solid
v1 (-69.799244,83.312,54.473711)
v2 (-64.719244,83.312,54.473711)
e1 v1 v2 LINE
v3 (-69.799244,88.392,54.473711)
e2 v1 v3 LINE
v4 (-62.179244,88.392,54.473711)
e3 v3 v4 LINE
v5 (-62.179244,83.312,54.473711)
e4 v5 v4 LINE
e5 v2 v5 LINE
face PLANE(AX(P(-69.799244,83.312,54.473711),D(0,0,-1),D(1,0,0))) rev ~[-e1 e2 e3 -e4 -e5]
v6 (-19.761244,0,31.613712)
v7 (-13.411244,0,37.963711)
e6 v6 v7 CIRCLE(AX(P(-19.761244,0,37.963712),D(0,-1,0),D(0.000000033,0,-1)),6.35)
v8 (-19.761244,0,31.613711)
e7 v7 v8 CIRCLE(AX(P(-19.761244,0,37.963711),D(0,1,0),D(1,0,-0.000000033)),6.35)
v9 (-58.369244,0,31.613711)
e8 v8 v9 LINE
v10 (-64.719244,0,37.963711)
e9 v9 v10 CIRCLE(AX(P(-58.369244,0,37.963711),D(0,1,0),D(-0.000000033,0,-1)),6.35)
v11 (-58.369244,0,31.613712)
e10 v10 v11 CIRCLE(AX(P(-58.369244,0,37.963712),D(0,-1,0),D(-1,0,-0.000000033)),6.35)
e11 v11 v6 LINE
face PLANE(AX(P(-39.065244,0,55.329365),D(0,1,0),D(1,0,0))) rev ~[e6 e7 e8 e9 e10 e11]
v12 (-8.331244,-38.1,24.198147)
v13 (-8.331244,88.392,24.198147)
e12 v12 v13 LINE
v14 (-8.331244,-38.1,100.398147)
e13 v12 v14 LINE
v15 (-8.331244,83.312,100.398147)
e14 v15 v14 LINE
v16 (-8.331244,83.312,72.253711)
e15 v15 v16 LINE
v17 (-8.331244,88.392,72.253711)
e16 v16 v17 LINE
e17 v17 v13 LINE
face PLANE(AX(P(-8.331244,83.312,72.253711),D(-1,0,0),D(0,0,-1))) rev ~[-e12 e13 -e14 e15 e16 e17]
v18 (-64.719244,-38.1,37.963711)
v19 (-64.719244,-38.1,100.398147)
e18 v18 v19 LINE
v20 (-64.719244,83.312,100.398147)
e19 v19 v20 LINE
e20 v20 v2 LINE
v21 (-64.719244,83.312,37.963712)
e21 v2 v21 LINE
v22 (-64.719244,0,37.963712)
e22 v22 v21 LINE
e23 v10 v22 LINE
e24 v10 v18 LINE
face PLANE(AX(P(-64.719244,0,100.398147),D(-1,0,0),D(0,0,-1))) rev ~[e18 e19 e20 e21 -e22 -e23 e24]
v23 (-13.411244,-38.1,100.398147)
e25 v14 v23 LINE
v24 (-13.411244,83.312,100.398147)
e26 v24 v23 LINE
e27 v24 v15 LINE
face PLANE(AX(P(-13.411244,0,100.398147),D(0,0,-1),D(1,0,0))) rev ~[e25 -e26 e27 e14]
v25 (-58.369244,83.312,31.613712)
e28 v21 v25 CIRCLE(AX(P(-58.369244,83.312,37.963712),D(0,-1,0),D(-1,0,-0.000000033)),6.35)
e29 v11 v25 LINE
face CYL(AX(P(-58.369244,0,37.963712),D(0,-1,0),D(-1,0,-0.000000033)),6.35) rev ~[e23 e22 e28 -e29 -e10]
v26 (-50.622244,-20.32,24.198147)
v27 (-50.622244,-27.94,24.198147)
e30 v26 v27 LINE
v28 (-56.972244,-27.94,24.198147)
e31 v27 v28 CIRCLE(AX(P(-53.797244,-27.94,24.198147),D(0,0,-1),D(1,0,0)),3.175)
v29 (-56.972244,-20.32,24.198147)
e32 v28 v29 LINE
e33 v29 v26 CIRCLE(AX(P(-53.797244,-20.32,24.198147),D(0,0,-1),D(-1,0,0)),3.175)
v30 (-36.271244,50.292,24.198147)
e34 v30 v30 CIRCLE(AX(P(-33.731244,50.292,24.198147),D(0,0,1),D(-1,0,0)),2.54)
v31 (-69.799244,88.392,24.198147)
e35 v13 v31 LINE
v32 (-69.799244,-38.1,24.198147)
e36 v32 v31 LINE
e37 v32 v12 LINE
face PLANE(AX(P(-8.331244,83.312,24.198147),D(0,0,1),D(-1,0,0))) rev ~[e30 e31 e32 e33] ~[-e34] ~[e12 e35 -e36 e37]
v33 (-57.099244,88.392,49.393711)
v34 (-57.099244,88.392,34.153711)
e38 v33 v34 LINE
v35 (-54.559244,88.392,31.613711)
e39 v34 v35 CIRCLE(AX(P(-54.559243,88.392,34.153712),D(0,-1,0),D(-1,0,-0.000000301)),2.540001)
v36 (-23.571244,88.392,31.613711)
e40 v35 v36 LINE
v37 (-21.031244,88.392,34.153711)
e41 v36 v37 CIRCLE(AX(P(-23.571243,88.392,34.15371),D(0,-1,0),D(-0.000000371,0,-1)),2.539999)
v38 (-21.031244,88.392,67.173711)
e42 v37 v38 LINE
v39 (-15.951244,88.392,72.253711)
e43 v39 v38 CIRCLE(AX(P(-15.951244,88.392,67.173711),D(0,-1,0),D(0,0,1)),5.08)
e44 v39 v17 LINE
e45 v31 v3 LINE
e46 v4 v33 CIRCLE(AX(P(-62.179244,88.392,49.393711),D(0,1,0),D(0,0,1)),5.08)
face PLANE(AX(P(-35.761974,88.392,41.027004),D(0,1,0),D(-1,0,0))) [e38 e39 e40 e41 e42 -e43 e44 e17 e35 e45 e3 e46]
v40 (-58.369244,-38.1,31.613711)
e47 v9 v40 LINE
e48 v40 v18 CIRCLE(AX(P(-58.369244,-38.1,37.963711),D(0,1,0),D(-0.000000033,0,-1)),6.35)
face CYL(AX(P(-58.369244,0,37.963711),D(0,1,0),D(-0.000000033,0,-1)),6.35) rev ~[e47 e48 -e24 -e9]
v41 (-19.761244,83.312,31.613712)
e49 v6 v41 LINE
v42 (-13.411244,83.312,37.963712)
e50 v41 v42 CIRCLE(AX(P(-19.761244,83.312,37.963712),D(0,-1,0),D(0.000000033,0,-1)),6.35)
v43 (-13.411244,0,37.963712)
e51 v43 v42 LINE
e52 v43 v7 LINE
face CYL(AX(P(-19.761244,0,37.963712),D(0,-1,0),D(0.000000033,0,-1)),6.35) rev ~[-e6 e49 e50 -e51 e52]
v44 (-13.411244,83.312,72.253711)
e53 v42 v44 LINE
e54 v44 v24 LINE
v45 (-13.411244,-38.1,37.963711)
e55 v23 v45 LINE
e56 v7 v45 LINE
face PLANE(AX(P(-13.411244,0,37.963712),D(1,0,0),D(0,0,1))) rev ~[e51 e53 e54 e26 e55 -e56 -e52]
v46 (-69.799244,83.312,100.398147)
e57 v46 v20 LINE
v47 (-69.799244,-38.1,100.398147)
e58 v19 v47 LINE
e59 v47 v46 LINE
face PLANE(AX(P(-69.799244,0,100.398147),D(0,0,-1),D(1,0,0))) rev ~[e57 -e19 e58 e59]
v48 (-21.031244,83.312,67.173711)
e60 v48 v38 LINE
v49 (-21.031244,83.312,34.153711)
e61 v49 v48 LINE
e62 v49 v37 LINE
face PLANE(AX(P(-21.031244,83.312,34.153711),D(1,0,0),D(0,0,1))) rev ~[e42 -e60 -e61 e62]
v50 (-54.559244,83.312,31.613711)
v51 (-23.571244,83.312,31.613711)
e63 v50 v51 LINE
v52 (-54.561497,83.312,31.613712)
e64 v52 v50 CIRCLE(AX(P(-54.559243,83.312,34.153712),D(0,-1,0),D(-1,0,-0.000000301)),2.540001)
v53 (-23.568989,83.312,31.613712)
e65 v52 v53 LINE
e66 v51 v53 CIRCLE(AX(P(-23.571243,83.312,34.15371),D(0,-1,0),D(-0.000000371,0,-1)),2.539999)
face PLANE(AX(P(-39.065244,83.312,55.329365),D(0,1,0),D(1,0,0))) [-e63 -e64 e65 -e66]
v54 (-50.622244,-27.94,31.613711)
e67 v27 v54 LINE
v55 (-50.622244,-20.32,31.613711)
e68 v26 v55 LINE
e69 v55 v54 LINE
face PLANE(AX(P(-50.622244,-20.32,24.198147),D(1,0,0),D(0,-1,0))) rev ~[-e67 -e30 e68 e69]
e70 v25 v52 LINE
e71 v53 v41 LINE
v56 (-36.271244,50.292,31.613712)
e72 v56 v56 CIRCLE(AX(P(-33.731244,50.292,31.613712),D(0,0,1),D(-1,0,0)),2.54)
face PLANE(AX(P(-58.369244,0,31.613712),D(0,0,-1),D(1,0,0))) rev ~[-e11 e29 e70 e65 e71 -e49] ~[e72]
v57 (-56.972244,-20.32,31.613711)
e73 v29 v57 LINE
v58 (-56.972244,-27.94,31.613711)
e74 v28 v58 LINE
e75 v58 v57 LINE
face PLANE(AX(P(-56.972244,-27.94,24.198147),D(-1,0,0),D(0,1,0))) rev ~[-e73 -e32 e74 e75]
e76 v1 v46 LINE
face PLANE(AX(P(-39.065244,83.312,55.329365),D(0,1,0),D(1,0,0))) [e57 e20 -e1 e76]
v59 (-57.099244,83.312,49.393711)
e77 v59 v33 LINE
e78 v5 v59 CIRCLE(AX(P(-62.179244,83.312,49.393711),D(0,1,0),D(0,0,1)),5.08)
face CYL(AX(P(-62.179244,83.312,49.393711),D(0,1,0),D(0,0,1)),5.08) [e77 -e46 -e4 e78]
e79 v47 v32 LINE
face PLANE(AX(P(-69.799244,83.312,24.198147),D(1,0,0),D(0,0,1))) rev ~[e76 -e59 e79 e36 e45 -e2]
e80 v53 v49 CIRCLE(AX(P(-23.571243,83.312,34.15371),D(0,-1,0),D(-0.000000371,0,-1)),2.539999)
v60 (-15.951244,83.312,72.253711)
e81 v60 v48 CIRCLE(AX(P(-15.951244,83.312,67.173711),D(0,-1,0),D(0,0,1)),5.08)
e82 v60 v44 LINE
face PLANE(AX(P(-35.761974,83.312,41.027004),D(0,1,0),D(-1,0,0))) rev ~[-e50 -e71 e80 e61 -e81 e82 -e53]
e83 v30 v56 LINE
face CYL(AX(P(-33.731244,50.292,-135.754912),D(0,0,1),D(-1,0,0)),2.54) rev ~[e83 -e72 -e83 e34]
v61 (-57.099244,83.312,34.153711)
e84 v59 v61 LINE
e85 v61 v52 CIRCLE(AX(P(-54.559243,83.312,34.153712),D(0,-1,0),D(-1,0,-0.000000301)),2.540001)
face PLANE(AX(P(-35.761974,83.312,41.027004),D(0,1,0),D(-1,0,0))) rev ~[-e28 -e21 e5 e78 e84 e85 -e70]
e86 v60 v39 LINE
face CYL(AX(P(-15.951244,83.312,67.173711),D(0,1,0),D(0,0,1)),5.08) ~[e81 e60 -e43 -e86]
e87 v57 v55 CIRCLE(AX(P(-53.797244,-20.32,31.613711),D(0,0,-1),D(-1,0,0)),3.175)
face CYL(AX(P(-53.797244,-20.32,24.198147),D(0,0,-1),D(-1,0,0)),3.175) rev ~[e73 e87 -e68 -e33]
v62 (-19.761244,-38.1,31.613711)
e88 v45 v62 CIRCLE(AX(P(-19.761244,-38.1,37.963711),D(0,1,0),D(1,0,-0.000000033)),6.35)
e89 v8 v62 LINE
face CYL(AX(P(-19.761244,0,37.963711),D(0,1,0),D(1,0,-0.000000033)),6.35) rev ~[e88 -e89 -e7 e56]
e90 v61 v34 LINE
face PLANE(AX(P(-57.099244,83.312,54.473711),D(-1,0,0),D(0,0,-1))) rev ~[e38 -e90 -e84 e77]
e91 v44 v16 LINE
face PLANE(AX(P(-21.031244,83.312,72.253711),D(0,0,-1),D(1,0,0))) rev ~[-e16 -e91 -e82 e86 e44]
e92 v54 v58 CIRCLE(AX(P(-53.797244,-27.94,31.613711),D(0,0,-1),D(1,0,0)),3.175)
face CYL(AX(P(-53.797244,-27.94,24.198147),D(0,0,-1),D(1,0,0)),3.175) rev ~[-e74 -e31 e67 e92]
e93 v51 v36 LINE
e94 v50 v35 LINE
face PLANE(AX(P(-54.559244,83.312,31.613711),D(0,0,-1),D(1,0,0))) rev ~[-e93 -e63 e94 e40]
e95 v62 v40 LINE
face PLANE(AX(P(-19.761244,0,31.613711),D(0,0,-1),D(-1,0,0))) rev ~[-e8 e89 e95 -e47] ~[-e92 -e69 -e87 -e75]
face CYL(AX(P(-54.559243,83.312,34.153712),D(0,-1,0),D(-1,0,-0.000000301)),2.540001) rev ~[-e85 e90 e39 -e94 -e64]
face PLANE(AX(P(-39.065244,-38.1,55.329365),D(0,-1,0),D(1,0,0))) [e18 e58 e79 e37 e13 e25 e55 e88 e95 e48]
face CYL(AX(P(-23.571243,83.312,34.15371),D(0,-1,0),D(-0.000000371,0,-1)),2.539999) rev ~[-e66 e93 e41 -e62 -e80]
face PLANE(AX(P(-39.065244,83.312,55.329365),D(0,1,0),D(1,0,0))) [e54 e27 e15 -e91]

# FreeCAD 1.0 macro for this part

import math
import FreeCAD as App
import Part
import Sketcher
from FreeCAD import Vector
Q = App.Units.Quantity


def edges_at(feature, points):
    """Names of the edges that pass closest to the given points."""
    edges = feature.Shape.Edges
    near = lambda p: min(range(len(edges)), key=lambda i: edges[i].distToShape(Part.Vertex(*p))[0])
    return sorted({f"Edge{near(p) + 1}" for p in points})

doc = App.newDocument("Part")
body = doc.addObject("PartDesign::Body", "Body")

sketch1 = body.newObject("Sketcher::SketchObject", "Sketch")
sketch1.AttachmentSupport = (doc.getObject("XZ_Plane"), [""])
sketch1.MapMode = "FlatFace"
sketch1.addGeometry([
    Part.LineSegment(Vector(-64.719244, 37.963711, 0), Vector(-64.719244, 100.398147, 0)),
    Part.LineSegment(Vector(-64.719244, 100.398147, 0), Vector(-69.799244, 100.398147, 0)),
    Part.LineSegment(Vector(-69.799244, 100.398147, 0), Vector(-69.799244, 24.198147, 0)),
    Part.LineSegment(Vector(-69.799244, 24.198147, 0), Vector(-8.331244, 24.198147, 0)),
    Part.LineSegment(Vector(-8.331244, 24.198147, 0), Vector(-8.331244, 100.398147, 0)),
    Part.LineSegment(Vector(-8.331244, 100.398147, 0), Vector(-13.411244, 100.398147, 0)),
    Part.LineSegment(Vector(-13.411244, 100.398147, 0), Vector(-13.411244, 37.963711, 0)),
    Part.ArcOfCircle(Part.Circle(Vector(-19.761244, 37.963711, 0), Vector(0, 0, 1), 6.35), math.radians(-89.999998), math.radians(-0.000002)),
    Part.LineSegment(Vector(-19.761244, 31.613711, 0), Vector(-58.369244, 31.613711, 0)),
    Part.ArcOfCircle(Part.Circle(Vector(-58.369244, 37.963711, 0), Vector(0, 0, 1), 6.35), math.radians(-179.999998), math.radians(-90.000002)),
], False)
sketch1.addConstraint([
    Sketcher.Constraint("Coincident", 0, 2, 1, 1),
    Sketcher.Constraint("Coincident", 1, 2, 2, 1),
    Sketcher.Constraint("Coincident", 2, 2, 3, 1),
    Sketcher.Constraint("Coincident", 3, 2, 4, 1),
    Sketcher.Constraint("Coincident", 4, 2, 5, 1),
    Sketcher.Constraint("Coincident", 5, 2, 6, 1),
    Sketcher.Constraint("Tangent", 6, 2, 7, 2),
    Sketcher.Constraint("Tangent", 7, 1, 8, 1),
    Sketcher.Constraint("Tangent", 8, 2, 9, 2),
    Sketcher.Constraint("Tangent", 9, 1, 0, 1),
    Sketcher.Constraint("Vertical", 0),
    Sketcher.Constraint("Horizontal", 1),
    Sketcher.Constraint("Vertical", 2),
    Sketcher.Constraint("Horizontal", 3),
    Sketcher.Constraint("Vertical", 4),
    Sketcher.Constraint("Horizontal", 5),
    Sketcher.Constraint("Vertical", 6),
    Sketcher.Constraint("Horizontal", 8),
    Sketcher.Constraint("Equal", 7, 9),
    Sketcher.Constraint("Horizontal", 1, 2, 4, 2),
    Sketcher.Constraint("Equal", 1, 5),
    Sketcher.Constraint("DistanceY", 2, 2, 2, 1, Q("3 in")),
    Sketcher.Constraint("Radius", 7, Q("0.25 in")),
    Sketcher.Constraint("DistanceX", 1, 2, 1, 1, Q("0.2 in")),
    Sketcher.Constraint("DistanceX", 3, 1, 3, 2, Q("2.42 in")),
    Sketcher.Constraint("DistanceY", 0, 1, 0, 2, Q("62.434436 mm")),
    Sketcher.Constraint("DistanceY", -1, 1, 7, 3, Q("37.963711 mm")),
    Sketcher.Constraint("DistanceX", 7, 3, -1, 1, Q("19.761244 mm")),
])
pad1 = body.newObject("PartDesign::Pad", "Pad")
pad1.Profile = sketch1
pad1.Length = Q("1.5 in")

sketch2 = body.newObject("Sketcher::SketchObject", "Sketch001")
sketch2.AttachmentSupport = (doc.getObject("XZ_Plane"), [""])
sketch2.MapMode = "FlatFace"
sketch2.addGeometry([
    Part.LineSegment(Vector(-8.331244, 100.398147, 0), Vector(-8.331244, 24.198147, 0)),
    Part.LineSegment(Vector(-8.331244, 24.198147, 0), Vector(-69.799244, 24.198147, 0)),
    Part.LineSegment(Vector(-69.799244, 24.198147, 0), Vector(-69.799244, 100.398147, 0)),
    Part.LineSegment(Vector(-69.799244, 100.398147, 0), Vector(-64.719244, 100.398147, 0)),
    Part.LineSegment(Vector(-64.719244, 100.398147, 0), Vector(-64.719244, 37.963712, 0)),
    Part.ArcOfCircle(Part.Circle(Vector(-58.369244, 37.963712, 0), Vector(0, 0, 1), 6.35), math.radians(-179.999998), math.radians(-90.000002)),
    Part.LineSegment(Vector(-58.369244, 31.613712, 0), Vector(-19.761244, 31.613712, 0)),
    Part.ArcOfCircle(Part.Circle(Vector(-19.761244, 37.963712, 0), Vector(0, 0, 1), 6.35), math.radians(-89.999998), math.radians(-0.000002)),
    Part.LineSegment(Vector(-13.411244, 37.963712, 0), Vector(-13.411244, 100.398147, 0)),
    Part.LineSegment(Vector(-13.411244, 100.398147, 0), Vector(-8.331244, 100.398147, 0)),
], False)
sketch2.addConstraint([
    Sketcher.Constraint("Coincident", 0, 2, 1, 1),
    Sketcher.Constraint("Coincident", 1, 2, 2, 1),
    Sketcher.Constraint("Coincident", 2, 2, 3, 1),
    Sketcher.Constraint("Coincident", 3, 2, 4, 1),
    Sketcher.Constraint("Tangent", 4, 2, 5, 1),
    Sketcher.Constraint("Tangent", 5, 2, 6, 1),
    Sketcher.Constraint("Tangent", 6, 2, 7, 1),
    Sketcher.Constraint("Tangent", 7, 2, 8, 1),
    Sketcher.Constraint("Coincident", 8, 2, 9, 1),
    Sketcher.Constraint("Coincident", 9, 2, 0, 1),
    Sketcher.Constraint("Vertical", 0),
    Sketcher.Constraint("Horizontal", 1),
    Sketcher.Constraint("Vertical", 2),
    Sketcher.Constraint("Horizontal", 3),
    Sketcher.Constraint("Vertical", 4),
    Sketcher.Constraint("Horizontal", 6),
    Sketcher.Constraint("Vertical", 8),
    Sketcher.Constraint("Horizontal", 9),
    Sketcher.Constraint("Equal", 5, 7),
    Sketcher.Constraint("Horizontal", 3, 2, 8, 2),
    Sketcher.Constraint("Equal", 3, 9),
    Sketcher.Constraint("DistanceY", 0, 2, 0, 1, Q("3 in")),
    Sketcher.Constraint("Radius", 5, Q("0.25 in")),
    Sketcher.Constraint("DistanceX", 3, 1, 3, 2, Q("0.2 in")),
    Sketcher.Constraint("DistanceX", 1, 2, 1, 1, Q("2.42 in")),
    Sketcher.Constraint("DistanceY", 4, 2, 4, 1, Q("62.434435 mm")),
    Sketcher.Constraint("DistanceY", -1, 1, 6, 2, Q("31.613712 mm")),
    Sketcher.Constraint("DistanceX", 5, 3, -1, 1, Q("58.369244 mm")),
])
pad2 = body.newObject("PartDesign::Pad", "Pad001")
pad2.Profile = sketch2
pad2.Length = Q("3.28 in")
pad2.Reversed = True

sketch3 = body.newObject("Sketcher::SketchObject", "Sketch002")
sketch3.AttachmentSupport = (doc.getObject("XY_Plane"), [""])
sketch3.MapMode = "FlatFace"
sketch3.AttachmentOffset = App.Placement(Vector(0, 0, 24.198147), App.Rotation())
sketch3.addGeometry([
    Part.LineSegment(Vector(-50.622244, -20.32, 0), Vector(-50.622244, -27.94, 0)),
    Part.ArcOfCircle(Part.Circle(Vector(-53.797244, -27.94, 0), Vector(0, 0, 1), 3.175), math.radians(180), math.radians(360)),
    Part.LineSegment(Vector(-56.972244, -27.94, 0), Vector(-56.972244, -20.32, 0)),
    Part.ArcOfCircle(Part.Circle(Vector(-53.797244, -20.32, 0), Vector(0, 0, 1), 3.175), math.radians(0), math.radians(180)),
], False)
sketch3.addConstraint([
    Sketcher.Constraint("Tangent", 0, 2, 1, 2),
    Sketcher.Constraint("Tangent", 1, 1, 2, 1),
    Sketcher.Constraint("Tangent", 2, 2, 3, 2),
    Sketcher.Constraint("Tangent", 3, 1, 0, 1),
    Sketcher.Constraint("Vertical", 0),
    Sketcher.Constraint("Vertical", 2),
    Sketcher.Constraint("DistanceY", 0, 2, 0, 1, Q("0.3 in")),
    Sketcher.Constraint("Radius", 1, Q("0.125 in")),
    Sketcher.Constraint("DistanceY", 1, 3, -1, 1, Q("1.1 in")),
    Sketcher.Constraint("DistanceX", 1, 3, -1, 1, Q("53.797244 mm")),
])
pocket1 = body.newObject("PartDesign::Pocket", "Pocket")
pocket1.Profile = sketch3
pocket1.Length = Q("1 in")
pocket1.Reversed = True

sketch4 = body.newObject("Sketcher::SketchObject", "Sketch003")
sketch4.AttachmentSupport = (doc.getObject("XZ_Plane"), [""])
sketch4.MapMode = "FlatFace"
sketch4.AttachmentOffset = App.Placement(Vector(0, 0, -3.28 * 25.4), App.Rotation())
sketch4.addGeometry([
    Part.LineSegment(Vector(-21.031244, 72.253711, 0), Vector(-8.331244, 72.253711, 0)),
    Part.LineSegment(Vector(-8.331244, 72.253711, 0), Vector(-8.331244, 24.198147, 0)),
    Part.LineSegment(Vector(-8.331244, 24.198147, 0), Vector(-69.799244, 24.198147, 0)),
    Part.LineSegment(Vector(-69.799244, 24.198147, 0), Vector(-69.799244, 54.473711, 0)),
    Part.LineSegment(Vector(-69.799244, 54.473711, 0), Vector(-57.099244, 54.473711, 0)),
    Part.LineSegment(Vector(-57.099244, 54.473711, 0), Vector(-57.099244, 34.153711, 0)),
    Part.ArcOfCircle(Part.Circle(Vector(-54.559243, 34.153712, 0), Vector(0, 0, 1), 2.540001), math.radians(-179.999983), math.radians(-90.000017)),
    Part.LineSegment(Vector(-54.559244, 31.613711, 0), Vector(-23.571244, 31.613711, 0)),
    Part.ArcOfCircle(Part.Circle(Vector(-23.571243, 34.15371, 0), Vector(0, 0, 1), 2.539999), math.radians(-90.000021), math.radians(0.000021)),
    Part.LineSegment(Vector(-21.031244, 34.153711, 0), Vector(-21.031244, 72.253711, 0)),
], False)
sketch4.addConstraint([
    Sketcher.Constraint("Coincident", 0, 2, 1, 1),
    Sketcher.Constraint("Coincident", 1, 2, 2, 1),
    Sketcher.Constraint("Coincident", 2, 2, 3, 1),
    Sketcher.Constraint("Coincident", 3, 2, 4, 1),
    Sketcher.Constraint("Coincident", 4, 2, 5, 1),
    Sketcher.Constraint("Tangent", 5, 2, 6, 1),
    Sketcher.Constraint("Tangent", 6, 2, 7, 1),
    Sketcher.Constraint("Tangent", 7, 2, 8, 1),
    Sketcher.Constraint("Tangent", 8, 2, 9, 1),
    Sketcher.Constraint("Coincident", 9, 2, 0, 1),
    Sketcher.Constraint("Horizontal", 0),
    Sketcher.Constraint("Vertical", 1),
    Sketcher.Constraint("Horizontal", 2),
    Sketcher.Constraint("Vertical", 3),
    Sketcher.Constraint("Horizontal", 4),
    Sketcher.Constraint("Vertical", 5),
    Sketcher.Constraint("Horizontal", 7),
    Sketcher.Constraint("Vertical", 9),
    Sketcher.Constraint("Equal", 6, 8),
    Sketcher.Constraint("Equal", 0, 4),
    Sketcher.Constraint("Radius", 6, Q("0.1 in")),
    Sketcher.Constraint("DistanceX", 0, 1, 0, 2, Q("0.5 in")),
    Sketcher.Constraint("DistanceY", 5, 2, 5, 1, Q("0.8 in")),
    Sketcher.Constraint("DistanceY", 9, 1, 9, 2, Q("1.5 in")),
    Sketcher.Constraint("DistanceX", 2, 2, 2, 1, Q("2.42 in")),
    Sketcher.Constraint("DistanceY", 1, 2, 1, 1, Q("48.055564 mm")),
    Sketcher.Constraint("DistanceY", -1, 1, 6, 3, Q("34.153712 mm")),
    Sketcher.Constraint("DistanceX", 6, 3, -1, 1, Q("54.559243 mm")),
])
pad3 = body.newObject("PartDesign::Pad", "Pad002")
pad3.Profile = sketch4
pad3.Length = Q("0.2 in")
pad3.Reversed = True

sketch5 = body.newObject("Sketcher::SketchObject", "Sketch004")
sketch5.AttachmentSupport = (doc.getObject("XY_Plane"), [""])
sketch5.MapMode = "FlatFace"
sketch5.AttachmentOffset = App.Placement(Vector(0, 0, 24.198147), App.Rotation())
sketch5.addGeometry(Part.Circle(Vector(-33.731244, 50.292, 0), Vector(0, 0, 1), 2.54), False)
sketch5.addConstraint([
    Sketcher.Constraint("Diameter", 0, Q("0.2 in")),
    Sketcher.Constraint("DistanceY", -1, 1, 0, 3, Q("1.98 in")),
    Sketcher.Constraint("DistanceX", 0, 3, -1, 1, Q("33.731244 mm")),
])
doc.recompute()
hole = body.newObject("PartDesign::Hole", "Hole")
hole.Profile = sketch5
hole.ThreadType = "None"
hole.Diameter = Q("0.2 in")
hole.DepthType = "ThroughAll"
hole.Reversed = True
doc.recompute()

fillet = body.newObject("PartDesign::Fillet", "Fillet")
fillet.Base = (hole, edges_at(hole, [(-57.099, 85.852, 54.474), (-21.031, 85.852, 72.254)]))
fillet.Radius = Q("0.2 in")

doc.recompute()
